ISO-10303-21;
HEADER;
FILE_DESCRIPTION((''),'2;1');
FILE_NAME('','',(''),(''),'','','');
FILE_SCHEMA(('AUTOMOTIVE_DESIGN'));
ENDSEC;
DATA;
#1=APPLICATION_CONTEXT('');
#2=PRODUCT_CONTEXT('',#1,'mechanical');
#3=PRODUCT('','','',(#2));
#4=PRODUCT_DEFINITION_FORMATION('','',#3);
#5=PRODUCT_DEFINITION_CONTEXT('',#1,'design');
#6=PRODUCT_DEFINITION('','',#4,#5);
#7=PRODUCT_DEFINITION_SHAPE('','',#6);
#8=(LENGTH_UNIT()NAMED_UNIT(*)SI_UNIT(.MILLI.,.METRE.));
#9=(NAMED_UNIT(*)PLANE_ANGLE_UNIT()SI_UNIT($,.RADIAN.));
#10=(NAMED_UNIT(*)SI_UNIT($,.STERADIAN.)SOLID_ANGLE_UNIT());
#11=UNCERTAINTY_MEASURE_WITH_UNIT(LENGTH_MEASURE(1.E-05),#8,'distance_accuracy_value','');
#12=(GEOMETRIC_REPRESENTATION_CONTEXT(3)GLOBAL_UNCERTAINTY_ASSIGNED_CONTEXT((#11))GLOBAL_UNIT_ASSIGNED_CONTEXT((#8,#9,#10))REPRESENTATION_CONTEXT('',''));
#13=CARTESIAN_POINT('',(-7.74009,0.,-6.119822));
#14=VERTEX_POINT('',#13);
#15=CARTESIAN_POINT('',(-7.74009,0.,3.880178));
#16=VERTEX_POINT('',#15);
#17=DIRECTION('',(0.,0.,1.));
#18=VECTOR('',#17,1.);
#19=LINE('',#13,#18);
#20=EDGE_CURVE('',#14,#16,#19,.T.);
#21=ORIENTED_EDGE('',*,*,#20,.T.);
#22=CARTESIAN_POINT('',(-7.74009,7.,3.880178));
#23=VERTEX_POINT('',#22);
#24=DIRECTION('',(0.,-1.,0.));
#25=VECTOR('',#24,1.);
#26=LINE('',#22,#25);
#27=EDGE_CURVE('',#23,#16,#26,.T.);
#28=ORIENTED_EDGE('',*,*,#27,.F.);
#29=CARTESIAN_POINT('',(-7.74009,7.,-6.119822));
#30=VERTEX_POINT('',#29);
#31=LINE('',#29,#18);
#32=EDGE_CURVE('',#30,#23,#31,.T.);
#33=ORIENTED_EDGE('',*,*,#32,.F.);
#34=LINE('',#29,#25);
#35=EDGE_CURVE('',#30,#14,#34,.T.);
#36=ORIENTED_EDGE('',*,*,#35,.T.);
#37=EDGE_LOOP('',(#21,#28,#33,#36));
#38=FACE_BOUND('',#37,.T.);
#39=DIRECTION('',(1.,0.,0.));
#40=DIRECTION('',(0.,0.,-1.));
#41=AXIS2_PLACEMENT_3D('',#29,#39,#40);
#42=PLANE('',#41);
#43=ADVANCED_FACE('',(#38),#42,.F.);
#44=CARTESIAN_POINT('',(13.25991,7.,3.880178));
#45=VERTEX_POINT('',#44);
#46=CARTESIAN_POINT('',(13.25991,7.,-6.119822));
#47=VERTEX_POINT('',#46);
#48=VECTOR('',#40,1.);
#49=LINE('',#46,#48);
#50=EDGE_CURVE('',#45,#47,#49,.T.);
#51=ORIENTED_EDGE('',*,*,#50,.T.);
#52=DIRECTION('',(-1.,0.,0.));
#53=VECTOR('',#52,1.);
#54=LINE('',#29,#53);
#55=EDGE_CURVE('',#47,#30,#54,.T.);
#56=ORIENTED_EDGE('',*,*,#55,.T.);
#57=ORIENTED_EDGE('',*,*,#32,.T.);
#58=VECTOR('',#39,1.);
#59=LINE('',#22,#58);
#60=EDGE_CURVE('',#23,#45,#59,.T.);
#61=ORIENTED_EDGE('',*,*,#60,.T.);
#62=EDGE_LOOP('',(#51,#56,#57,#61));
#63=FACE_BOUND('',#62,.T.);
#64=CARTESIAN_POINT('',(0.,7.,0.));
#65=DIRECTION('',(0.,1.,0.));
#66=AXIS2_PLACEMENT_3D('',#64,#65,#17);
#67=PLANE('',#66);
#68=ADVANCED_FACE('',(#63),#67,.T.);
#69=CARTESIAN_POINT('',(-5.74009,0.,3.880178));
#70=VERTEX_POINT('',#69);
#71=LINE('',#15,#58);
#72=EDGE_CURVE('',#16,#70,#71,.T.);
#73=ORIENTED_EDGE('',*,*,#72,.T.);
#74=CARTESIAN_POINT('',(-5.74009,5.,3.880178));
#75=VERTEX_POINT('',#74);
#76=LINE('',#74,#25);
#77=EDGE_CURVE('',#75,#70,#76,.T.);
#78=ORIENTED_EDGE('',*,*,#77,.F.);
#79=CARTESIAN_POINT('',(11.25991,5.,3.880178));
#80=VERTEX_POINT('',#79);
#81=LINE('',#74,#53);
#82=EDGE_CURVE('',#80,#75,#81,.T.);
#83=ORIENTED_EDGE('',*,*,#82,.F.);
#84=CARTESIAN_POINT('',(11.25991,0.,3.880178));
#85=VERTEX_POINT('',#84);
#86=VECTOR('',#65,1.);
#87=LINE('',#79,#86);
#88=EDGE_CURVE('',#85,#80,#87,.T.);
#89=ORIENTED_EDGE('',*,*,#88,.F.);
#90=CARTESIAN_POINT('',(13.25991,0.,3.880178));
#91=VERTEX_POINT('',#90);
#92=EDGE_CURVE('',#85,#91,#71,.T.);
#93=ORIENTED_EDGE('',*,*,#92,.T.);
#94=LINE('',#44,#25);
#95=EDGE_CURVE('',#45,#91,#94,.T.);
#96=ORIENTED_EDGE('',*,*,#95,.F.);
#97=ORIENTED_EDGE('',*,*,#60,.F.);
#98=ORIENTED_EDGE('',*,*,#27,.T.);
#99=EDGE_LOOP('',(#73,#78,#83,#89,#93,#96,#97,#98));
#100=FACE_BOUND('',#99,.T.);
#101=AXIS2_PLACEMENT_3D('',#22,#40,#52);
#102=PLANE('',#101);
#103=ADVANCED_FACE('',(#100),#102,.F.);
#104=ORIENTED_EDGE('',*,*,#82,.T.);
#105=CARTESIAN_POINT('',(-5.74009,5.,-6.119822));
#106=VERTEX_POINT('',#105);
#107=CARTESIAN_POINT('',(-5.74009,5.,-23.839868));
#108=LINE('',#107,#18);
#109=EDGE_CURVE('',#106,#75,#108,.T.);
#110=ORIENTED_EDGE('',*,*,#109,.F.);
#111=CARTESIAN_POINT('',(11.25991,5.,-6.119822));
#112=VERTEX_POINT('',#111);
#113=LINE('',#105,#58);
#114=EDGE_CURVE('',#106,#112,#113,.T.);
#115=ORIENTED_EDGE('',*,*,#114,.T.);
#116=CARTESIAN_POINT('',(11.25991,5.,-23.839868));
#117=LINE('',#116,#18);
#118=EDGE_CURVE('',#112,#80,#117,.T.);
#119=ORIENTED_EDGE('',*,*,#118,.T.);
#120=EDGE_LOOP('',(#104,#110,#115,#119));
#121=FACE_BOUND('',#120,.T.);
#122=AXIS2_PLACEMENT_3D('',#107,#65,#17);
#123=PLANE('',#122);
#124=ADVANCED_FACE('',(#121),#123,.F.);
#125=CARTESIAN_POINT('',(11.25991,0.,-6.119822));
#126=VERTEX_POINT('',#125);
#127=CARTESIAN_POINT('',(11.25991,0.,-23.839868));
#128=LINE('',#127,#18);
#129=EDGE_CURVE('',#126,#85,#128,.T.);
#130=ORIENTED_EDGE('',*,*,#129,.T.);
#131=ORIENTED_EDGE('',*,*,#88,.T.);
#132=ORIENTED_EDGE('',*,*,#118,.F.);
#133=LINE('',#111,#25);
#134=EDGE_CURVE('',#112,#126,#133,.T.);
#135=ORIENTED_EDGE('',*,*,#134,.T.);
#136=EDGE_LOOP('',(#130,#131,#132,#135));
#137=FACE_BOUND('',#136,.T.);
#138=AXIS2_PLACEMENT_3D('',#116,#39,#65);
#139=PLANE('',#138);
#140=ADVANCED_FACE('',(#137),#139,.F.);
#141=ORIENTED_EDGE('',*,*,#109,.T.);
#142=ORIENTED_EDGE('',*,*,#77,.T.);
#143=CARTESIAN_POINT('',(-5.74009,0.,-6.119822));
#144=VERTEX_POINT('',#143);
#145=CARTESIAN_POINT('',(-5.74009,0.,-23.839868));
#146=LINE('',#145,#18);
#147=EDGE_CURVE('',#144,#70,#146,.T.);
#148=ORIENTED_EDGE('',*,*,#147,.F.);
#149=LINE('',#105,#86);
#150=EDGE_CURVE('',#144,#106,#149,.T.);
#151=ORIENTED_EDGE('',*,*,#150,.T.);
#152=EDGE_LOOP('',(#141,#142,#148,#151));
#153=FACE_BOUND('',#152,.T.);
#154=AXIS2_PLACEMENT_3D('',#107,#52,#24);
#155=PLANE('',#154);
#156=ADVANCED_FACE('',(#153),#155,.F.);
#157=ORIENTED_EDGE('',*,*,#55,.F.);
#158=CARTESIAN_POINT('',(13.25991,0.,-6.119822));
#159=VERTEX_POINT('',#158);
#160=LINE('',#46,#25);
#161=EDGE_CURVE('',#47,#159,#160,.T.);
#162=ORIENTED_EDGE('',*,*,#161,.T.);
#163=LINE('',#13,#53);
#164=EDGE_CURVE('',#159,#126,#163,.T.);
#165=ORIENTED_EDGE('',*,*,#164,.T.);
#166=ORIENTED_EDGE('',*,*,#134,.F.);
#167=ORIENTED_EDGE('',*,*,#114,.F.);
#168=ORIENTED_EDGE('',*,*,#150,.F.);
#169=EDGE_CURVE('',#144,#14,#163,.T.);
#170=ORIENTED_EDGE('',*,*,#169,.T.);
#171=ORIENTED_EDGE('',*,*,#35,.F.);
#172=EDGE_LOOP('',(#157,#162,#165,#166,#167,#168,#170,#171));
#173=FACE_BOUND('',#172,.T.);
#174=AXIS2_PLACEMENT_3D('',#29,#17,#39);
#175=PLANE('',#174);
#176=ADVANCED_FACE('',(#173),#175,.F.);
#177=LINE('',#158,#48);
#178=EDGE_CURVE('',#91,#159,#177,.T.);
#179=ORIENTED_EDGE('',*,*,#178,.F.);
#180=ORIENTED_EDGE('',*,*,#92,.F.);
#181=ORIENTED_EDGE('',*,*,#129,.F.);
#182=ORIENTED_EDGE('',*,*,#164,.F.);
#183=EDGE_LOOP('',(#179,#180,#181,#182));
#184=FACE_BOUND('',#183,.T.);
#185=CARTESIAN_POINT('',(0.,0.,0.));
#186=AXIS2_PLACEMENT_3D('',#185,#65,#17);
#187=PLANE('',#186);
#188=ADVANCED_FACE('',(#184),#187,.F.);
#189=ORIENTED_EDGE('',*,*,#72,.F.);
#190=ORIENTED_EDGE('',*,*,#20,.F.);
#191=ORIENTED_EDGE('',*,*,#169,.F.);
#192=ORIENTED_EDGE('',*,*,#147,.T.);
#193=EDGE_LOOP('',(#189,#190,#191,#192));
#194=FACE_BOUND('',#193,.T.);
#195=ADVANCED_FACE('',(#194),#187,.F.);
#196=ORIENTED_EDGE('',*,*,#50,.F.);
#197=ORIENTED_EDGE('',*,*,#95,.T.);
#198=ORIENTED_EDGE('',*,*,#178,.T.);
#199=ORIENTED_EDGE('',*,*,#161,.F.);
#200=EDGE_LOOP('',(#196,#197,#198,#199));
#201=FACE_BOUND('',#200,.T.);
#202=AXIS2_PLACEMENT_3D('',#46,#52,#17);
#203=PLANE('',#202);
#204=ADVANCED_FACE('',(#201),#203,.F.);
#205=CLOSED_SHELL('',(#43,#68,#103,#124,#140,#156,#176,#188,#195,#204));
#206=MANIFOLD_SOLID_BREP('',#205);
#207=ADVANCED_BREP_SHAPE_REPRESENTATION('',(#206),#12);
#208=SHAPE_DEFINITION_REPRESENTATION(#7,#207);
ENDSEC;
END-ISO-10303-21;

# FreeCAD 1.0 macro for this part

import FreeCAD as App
import Part
import Sketcher
from FreeCAD import Vector
Q = App.Units.Quantity

doc = App.newDocument("Part")
body = doc.addObject("PartDesign::Body", "Body")

sketch1 = body.newObject("Sketcher::SketchObject", "Sketch")
sketch1.AttachmentSupport = (doc.getObject("XZ_Plane"), [""])
sketch1.MapMode = "FlatFace"
sketch1.addGeometry(Part.LineSegment(Vector(-7.74009, -6.119822, 0), Vector(-7.74009, 3.880178, 0)), False)
sketch1.addGeometry(Part.LineSegment(Vector(-7.74009, 3.880178, 0), Vector(13.25991, 3.880178, 0)), False)
sketch1.addGeometry(Part.LineSegment(Vector(13.25991, 3.880178, 0), Vector(13.25991, -6.119822, 0)), False)
sketch1.addGeometry(Part.LineSegment(Vector(13.25991, -6.119822, 0), Vector(-7.74009, -6.119822, 0)), False)
sketch1.addConstraint(Sketcher.Constraint("Coincident", 0, 2, 1, 1))
sketch1.addConstraint(Sketcher.Constraint("Coincident", 1, 2, 2, 1))
sketch1.addConstraint(Sketcher.Constraint("Coincident", 2, 2, 3, 1))
sketch1.addConstraint(Sketcher.Constraint("Coincident", 3, 2, 0, 1))
sketch1.addConstraint(Sketcher.Constraint("Vertical", 0))
sketch1.addConstraint(Sketcher.Constraint("Horizontal", 1))
sketch1.addConstraint(Sketcher.Constraint("Vertical", 2))
sketch1.addConstraint(Sketcher.Constraint("Horizontal", 3))
sketch1.addConstraint(Sketcher.Constraint("DistanceX", 1, 1, 1, 2, Q("21 mm")))
sketch1.addConstraint(Sketcher.Constraint("DistanceY", 0, 1, 0, 2, Q("10 mm")))
sketch1.addConstraint(Sketcher.Constraint("DistanceX", 0, 2, -1, 1, Q("7.74009 mm")))
sketch1.addConstraint(Sketcher.Constraint("DistanceY", -1, 1, 0, 2, Q("3.880178 mm")))
pad1 = body.newObject("PartDesign::Pad", "Pad")
pad1.Profile = sketch1
pad1.Length = 7
pad1.Reversed = True

sketch2 = body.newObject("Sketcher::SketchObject", "Sketch001")
sketch2.AttachmentSupport = (doc.getObject("XY_Plane"), [""])
sketch2.MapMode = "FlatFace"
sketch2.AttachmentOffset = App.Placement(Vector(0, 0, 3.880178), App.Rotation())
sketch2.addGeometry(Part.LineSegment(Vector(-5.74009, 5, 0), Vector(-5.74009, 0, 0)), False)
sketch2.addGeometry(Part.LineSegment(Vector(-5.74009, 0, 0), Vector(11.25991, 0, 0)), False)
sketch2.addGeometry(Part.LineSegment(Vector(11.25991, 0, 0), Vector(11.25991, 5, 0)), False)
sketch2.addGeometry(Part.LineSegment(Vector(11.25991, 5, 0), Vector(-5.74009, 5, 0)), False)
sketch2.addConstraint(Sketcher.Constraint("Coincident", 0, 2, 1, 1))
sketch2.addConstraint(Sketcher.Constraint("Coincident", 1, 2, 2, 1))
sketch2.addConstraint(Sketcher.Constraint("Coincident", 2, 2, 3, 1))
sketch2.addConstraint(Sketcher.Constraint("Coincident", 3, 2, 0, 1))
sketch2.addConstraint(Sketcher.Constraint("Vertical", 0))
sketch2.addConstraint(Sketcher.Constraint("Horizontal", 1))
sketch2.addConstraint(Sketcher.Constraint("Vertical", 2))
sketch2.addConstraint(Sketcher.Constraint("Horizontal", 3))
sketch2.addConstraint(Sketcher.Constraint("PointOnObject", 0, 2, -1))
sketch2.addConstraint(Sketcher.Constraint("DistanceX", 1, 1, 1, 2, Q("17 mm")))
sketch2.addConstraint(Sketcher.Constraint("DistanceY", 0, 2, 0, 1, Q("5 mm")))
sketch2.addConstraint(Sketcher.Constraint("DistanceX", 0, 2, -1, 1, Q("5.74009 mm")))
pocket1 = body.newObject("PartDesign::Pocket", "Pocket")
pocket1.Profile = sketch2
pocket1.Length = 10

doc.recompute()
